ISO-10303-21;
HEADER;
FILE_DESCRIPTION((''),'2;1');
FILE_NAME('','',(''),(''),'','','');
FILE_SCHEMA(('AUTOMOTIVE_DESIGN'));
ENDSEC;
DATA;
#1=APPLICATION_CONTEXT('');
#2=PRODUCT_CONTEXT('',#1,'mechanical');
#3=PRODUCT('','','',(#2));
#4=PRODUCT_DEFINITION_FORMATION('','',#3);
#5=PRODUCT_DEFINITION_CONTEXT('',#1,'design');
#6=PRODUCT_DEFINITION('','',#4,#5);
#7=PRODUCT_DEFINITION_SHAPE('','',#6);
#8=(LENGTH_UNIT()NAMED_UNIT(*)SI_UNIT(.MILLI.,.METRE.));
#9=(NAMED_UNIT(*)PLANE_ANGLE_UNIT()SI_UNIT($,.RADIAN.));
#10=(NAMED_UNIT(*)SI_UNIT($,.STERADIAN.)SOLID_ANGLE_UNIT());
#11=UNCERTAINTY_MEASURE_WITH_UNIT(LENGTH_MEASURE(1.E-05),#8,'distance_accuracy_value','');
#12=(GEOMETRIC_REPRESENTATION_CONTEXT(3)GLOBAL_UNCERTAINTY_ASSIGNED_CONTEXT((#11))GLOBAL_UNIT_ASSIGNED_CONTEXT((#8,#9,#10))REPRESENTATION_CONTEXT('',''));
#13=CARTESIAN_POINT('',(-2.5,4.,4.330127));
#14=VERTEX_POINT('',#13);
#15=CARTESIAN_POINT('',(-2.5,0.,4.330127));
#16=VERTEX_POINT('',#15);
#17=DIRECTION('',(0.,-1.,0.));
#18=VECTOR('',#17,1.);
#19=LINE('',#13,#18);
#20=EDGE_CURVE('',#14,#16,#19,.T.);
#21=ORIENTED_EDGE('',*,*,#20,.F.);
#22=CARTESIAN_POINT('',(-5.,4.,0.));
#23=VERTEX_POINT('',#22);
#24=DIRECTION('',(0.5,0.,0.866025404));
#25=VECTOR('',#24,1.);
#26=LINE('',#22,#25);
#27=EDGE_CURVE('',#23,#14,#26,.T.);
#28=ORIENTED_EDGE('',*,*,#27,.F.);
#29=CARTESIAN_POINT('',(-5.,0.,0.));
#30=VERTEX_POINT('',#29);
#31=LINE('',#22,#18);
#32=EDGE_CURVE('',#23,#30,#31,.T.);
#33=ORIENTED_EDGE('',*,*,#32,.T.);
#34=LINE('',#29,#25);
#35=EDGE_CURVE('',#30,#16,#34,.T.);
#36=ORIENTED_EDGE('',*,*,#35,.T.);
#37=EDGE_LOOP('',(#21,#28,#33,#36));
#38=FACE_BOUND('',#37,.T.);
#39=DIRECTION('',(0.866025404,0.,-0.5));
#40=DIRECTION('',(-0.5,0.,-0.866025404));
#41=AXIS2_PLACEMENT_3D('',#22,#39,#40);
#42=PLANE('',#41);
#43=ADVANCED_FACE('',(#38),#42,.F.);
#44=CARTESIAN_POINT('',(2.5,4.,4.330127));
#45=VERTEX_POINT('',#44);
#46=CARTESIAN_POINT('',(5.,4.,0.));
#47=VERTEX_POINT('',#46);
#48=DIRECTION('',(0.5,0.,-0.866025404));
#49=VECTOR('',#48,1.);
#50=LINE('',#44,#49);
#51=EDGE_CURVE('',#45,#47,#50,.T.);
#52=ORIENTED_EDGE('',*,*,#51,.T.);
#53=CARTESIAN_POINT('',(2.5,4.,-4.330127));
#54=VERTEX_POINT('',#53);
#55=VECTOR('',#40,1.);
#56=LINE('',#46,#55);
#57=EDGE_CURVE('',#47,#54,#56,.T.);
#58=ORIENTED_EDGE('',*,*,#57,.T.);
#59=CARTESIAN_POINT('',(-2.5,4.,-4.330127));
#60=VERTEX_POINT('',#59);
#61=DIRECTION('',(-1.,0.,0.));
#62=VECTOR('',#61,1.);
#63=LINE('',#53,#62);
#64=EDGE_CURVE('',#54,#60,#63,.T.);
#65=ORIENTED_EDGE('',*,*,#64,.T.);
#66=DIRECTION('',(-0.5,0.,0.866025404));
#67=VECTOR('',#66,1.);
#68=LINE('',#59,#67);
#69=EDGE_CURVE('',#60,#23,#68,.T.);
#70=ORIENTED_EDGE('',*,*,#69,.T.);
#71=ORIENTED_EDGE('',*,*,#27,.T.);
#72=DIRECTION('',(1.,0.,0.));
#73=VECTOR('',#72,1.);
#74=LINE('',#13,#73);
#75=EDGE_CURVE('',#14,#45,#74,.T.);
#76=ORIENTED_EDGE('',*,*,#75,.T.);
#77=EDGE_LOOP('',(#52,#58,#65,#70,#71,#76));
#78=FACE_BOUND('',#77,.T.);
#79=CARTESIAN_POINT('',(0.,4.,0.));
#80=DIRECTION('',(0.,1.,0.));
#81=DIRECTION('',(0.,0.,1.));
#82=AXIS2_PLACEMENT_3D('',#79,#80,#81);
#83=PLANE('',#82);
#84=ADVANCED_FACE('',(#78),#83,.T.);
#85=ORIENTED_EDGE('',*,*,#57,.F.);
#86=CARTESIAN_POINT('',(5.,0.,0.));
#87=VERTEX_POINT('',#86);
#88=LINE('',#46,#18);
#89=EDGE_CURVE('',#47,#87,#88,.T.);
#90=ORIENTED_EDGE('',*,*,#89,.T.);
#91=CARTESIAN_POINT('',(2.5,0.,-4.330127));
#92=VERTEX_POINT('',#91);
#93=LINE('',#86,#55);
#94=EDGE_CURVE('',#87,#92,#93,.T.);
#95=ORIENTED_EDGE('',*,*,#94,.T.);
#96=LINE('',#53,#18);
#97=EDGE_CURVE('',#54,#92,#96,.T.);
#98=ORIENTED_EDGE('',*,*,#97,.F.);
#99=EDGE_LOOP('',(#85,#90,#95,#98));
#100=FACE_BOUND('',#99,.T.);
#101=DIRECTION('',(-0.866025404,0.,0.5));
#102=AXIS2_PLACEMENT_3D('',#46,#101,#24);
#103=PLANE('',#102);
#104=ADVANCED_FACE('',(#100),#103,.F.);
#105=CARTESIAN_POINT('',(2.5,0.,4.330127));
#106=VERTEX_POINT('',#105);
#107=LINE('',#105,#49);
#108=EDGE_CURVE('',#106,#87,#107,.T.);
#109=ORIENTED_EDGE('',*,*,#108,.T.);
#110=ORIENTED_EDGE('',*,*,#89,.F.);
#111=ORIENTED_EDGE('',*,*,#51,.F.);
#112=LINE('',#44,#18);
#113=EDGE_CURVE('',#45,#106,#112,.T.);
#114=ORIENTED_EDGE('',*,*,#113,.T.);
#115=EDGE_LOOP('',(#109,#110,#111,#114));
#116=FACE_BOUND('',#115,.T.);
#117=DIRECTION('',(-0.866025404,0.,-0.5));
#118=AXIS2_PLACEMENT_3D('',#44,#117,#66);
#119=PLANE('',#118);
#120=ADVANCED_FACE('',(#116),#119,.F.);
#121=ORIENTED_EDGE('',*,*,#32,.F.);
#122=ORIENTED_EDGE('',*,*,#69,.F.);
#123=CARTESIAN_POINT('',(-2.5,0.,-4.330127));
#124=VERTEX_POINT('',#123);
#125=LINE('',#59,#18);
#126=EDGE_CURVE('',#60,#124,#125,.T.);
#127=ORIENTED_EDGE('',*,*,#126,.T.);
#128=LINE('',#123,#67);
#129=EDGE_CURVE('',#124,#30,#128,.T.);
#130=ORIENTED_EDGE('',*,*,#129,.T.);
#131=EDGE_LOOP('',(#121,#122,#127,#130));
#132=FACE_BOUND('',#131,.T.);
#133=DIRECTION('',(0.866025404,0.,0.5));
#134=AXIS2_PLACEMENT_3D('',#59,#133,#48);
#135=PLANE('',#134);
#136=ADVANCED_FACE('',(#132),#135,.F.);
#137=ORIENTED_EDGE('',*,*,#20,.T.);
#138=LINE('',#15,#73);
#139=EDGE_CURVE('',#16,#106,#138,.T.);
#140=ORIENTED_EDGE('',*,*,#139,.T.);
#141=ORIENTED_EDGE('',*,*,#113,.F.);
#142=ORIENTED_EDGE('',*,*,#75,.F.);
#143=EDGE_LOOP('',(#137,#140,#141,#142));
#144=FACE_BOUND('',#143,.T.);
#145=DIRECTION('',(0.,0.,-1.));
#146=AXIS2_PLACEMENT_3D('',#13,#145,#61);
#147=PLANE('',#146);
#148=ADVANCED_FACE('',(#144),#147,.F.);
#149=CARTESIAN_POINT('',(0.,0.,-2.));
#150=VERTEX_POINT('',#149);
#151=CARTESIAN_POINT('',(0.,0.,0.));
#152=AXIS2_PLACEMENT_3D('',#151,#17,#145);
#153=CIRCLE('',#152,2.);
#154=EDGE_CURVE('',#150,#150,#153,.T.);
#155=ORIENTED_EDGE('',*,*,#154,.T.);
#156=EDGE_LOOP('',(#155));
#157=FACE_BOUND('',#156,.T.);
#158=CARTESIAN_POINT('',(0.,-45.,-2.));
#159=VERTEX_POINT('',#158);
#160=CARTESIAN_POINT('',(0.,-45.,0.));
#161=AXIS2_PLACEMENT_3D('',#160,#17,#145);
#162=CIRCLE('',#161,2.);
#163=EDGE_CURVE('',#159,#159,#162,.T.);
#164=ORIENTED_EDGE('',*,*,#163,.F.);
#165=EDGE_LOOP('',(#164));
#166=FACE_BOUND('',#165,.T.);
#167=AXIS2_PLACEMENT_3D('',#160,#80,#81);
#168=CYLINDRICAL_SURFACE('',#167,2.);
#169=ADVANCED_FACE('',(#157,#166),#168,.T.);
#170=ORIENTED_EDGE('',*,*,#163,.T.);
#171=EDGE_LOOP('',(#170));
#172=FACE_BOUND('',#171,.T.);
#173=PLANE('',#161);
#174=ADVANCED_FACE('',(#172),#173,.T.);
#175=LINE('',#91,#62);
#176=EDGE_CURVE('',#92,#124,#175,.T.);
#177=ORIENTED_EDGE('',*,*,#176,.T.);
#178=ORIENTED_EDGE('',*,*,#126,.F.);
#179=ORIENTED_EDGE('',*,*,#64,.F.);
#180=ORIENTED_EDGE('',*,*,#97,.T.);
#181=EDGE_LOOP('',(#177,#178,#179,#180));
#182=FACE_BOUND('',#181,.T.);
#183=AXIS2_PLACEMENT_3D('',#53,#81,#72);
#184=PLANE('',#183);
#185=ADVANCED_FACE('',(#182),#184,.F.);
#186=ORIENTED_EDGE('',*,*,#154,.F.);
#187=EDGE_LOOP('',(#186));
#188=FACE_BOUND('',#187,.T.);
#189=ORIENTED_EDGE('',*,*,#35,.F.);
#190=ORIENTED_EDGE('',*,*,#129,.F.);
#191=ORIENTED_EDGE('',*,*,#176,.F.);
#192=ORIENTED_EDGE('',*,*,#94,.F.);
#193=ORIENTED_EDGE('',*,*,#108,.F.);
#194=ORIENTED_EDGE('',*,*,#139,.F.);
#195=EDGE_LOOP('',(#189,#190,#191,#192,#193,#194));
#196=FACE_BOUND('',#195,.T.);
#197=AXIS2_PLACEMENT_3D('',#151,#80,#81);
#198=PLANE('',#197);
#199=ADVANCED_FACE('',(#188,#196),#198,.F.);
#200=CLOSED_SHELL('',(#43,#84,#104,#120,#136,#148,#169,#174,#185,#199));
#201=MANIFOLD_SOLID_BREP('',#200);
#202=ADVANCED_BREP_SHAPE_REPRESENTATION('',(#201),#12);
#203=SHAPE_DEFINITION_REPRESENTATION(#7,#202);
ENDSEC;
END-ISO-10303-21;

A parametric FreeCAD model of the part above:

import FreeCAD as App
import Part
import Sketcher

V = App.Vector
Q = App.Units.Quantity

doc = App.newDocument("Part")
body = doc.addObject("PartDesign::Body", "Body")

# Sketch on XZ plane
sketch1 = body.newObject("Sketcher::SketchObject", "Sketch")
sketch1.AttachmentSupport = (doc.getObject("XZ_Plane"), [""])
sketch1.MapMode = "FlatFace"
sketch1.addGeometry([
    Part.LineSegment(V(5, 0, 0), V(2.5, -4.330127, 0)),  # 0
    Part.LineSegment(V(2.5, -4.330127, 0), V(-2.5, -4.330127, 0)),  # 1
    Part.LineSegment(V(-2.5, -4.330127, 0), V(-5, 0, 0)),  # 2
    Part.LineSegment(V(-5, 0, 0), V(-2.5, 4.330127, 0)),  # 3
    Part.LineSegment(V(-2.5, 4.330127, 0), V(2.5, 4.330127, 0)),  # 4
    Part.LineSegment(V(2.5, 4.330127, 0), V(5, 0, 0)),  # 5
], False)
sketch1.addConstraint([
    Sketcher.Constraint("Coincident", 0, 2, 1, 1),
    Sketcher.Constraint("Coincident", 1, 2, 2, 1),
    Sketcher.Constraint("Coincident", 2, 2, 3, 1),
    Sketcher.Constraint("Coincident", 3, 2, 4, 1),
    Sketcher.Constraint("Coincident", 4, 2, 5, 1),
    Sketcher.Constraint("Coincident", 5, 2, 0, 1),
    Sketcher.Constraint("Horizontal", 1),
    Sketcher.Constraint("Horizontal", 4),
    Sketcher.Constraint("Symmetric", 0, 2, 3, 2, -1, 1),
    Sketcher.Constraint("Symmetric", 2, 2, 5, 2, -1, 1),
    Sketcher.Constraint("PointOnObject", 2, 2, -1),
    Sketcher.Constraint("Parallel", 2, 5),
    Sketcher.Constraint("Vertical", 1, 2, 3, 2),
    Sketcher.Constraint("DistanceX", 1, 2, 1, 1, 5.0),
    Sketcher.Constraint("Angle", 0, Q("-120 deg")),
    Sketcher.Constraint("Distance", 0, 5.0),
])
pad1 = body.newObject("PartDesign::Pad", "Pad")
pad1.Profile = sketch1
pad1.Length = 4
pad1.Reversed = True

# Sketch on XZ plane
sketch2 = body.newObject("Sketcher::SketchObject", "Sketch001")
sketch2.AttachmentSupport = (doc.getObject("XZ_Plane"), [""])
sketch2.MapMode = "FlatFace"
sketch2.addGeometry(Part.Circle(V(0, 0, 0), V(0, 0, 1), 2), False)
sketch2.addConstraint([
    Sketcher.Constraint("Coincident", 0, 3, -1, 1),
    Sketcher.Constraint("Diameter", 0, 4.0),
])
pad2 = body.newObject("PartDesign::Pad", "Pad001")
pad2.Profile = sketch2
pad2.Length = 45

doc.recompute()
